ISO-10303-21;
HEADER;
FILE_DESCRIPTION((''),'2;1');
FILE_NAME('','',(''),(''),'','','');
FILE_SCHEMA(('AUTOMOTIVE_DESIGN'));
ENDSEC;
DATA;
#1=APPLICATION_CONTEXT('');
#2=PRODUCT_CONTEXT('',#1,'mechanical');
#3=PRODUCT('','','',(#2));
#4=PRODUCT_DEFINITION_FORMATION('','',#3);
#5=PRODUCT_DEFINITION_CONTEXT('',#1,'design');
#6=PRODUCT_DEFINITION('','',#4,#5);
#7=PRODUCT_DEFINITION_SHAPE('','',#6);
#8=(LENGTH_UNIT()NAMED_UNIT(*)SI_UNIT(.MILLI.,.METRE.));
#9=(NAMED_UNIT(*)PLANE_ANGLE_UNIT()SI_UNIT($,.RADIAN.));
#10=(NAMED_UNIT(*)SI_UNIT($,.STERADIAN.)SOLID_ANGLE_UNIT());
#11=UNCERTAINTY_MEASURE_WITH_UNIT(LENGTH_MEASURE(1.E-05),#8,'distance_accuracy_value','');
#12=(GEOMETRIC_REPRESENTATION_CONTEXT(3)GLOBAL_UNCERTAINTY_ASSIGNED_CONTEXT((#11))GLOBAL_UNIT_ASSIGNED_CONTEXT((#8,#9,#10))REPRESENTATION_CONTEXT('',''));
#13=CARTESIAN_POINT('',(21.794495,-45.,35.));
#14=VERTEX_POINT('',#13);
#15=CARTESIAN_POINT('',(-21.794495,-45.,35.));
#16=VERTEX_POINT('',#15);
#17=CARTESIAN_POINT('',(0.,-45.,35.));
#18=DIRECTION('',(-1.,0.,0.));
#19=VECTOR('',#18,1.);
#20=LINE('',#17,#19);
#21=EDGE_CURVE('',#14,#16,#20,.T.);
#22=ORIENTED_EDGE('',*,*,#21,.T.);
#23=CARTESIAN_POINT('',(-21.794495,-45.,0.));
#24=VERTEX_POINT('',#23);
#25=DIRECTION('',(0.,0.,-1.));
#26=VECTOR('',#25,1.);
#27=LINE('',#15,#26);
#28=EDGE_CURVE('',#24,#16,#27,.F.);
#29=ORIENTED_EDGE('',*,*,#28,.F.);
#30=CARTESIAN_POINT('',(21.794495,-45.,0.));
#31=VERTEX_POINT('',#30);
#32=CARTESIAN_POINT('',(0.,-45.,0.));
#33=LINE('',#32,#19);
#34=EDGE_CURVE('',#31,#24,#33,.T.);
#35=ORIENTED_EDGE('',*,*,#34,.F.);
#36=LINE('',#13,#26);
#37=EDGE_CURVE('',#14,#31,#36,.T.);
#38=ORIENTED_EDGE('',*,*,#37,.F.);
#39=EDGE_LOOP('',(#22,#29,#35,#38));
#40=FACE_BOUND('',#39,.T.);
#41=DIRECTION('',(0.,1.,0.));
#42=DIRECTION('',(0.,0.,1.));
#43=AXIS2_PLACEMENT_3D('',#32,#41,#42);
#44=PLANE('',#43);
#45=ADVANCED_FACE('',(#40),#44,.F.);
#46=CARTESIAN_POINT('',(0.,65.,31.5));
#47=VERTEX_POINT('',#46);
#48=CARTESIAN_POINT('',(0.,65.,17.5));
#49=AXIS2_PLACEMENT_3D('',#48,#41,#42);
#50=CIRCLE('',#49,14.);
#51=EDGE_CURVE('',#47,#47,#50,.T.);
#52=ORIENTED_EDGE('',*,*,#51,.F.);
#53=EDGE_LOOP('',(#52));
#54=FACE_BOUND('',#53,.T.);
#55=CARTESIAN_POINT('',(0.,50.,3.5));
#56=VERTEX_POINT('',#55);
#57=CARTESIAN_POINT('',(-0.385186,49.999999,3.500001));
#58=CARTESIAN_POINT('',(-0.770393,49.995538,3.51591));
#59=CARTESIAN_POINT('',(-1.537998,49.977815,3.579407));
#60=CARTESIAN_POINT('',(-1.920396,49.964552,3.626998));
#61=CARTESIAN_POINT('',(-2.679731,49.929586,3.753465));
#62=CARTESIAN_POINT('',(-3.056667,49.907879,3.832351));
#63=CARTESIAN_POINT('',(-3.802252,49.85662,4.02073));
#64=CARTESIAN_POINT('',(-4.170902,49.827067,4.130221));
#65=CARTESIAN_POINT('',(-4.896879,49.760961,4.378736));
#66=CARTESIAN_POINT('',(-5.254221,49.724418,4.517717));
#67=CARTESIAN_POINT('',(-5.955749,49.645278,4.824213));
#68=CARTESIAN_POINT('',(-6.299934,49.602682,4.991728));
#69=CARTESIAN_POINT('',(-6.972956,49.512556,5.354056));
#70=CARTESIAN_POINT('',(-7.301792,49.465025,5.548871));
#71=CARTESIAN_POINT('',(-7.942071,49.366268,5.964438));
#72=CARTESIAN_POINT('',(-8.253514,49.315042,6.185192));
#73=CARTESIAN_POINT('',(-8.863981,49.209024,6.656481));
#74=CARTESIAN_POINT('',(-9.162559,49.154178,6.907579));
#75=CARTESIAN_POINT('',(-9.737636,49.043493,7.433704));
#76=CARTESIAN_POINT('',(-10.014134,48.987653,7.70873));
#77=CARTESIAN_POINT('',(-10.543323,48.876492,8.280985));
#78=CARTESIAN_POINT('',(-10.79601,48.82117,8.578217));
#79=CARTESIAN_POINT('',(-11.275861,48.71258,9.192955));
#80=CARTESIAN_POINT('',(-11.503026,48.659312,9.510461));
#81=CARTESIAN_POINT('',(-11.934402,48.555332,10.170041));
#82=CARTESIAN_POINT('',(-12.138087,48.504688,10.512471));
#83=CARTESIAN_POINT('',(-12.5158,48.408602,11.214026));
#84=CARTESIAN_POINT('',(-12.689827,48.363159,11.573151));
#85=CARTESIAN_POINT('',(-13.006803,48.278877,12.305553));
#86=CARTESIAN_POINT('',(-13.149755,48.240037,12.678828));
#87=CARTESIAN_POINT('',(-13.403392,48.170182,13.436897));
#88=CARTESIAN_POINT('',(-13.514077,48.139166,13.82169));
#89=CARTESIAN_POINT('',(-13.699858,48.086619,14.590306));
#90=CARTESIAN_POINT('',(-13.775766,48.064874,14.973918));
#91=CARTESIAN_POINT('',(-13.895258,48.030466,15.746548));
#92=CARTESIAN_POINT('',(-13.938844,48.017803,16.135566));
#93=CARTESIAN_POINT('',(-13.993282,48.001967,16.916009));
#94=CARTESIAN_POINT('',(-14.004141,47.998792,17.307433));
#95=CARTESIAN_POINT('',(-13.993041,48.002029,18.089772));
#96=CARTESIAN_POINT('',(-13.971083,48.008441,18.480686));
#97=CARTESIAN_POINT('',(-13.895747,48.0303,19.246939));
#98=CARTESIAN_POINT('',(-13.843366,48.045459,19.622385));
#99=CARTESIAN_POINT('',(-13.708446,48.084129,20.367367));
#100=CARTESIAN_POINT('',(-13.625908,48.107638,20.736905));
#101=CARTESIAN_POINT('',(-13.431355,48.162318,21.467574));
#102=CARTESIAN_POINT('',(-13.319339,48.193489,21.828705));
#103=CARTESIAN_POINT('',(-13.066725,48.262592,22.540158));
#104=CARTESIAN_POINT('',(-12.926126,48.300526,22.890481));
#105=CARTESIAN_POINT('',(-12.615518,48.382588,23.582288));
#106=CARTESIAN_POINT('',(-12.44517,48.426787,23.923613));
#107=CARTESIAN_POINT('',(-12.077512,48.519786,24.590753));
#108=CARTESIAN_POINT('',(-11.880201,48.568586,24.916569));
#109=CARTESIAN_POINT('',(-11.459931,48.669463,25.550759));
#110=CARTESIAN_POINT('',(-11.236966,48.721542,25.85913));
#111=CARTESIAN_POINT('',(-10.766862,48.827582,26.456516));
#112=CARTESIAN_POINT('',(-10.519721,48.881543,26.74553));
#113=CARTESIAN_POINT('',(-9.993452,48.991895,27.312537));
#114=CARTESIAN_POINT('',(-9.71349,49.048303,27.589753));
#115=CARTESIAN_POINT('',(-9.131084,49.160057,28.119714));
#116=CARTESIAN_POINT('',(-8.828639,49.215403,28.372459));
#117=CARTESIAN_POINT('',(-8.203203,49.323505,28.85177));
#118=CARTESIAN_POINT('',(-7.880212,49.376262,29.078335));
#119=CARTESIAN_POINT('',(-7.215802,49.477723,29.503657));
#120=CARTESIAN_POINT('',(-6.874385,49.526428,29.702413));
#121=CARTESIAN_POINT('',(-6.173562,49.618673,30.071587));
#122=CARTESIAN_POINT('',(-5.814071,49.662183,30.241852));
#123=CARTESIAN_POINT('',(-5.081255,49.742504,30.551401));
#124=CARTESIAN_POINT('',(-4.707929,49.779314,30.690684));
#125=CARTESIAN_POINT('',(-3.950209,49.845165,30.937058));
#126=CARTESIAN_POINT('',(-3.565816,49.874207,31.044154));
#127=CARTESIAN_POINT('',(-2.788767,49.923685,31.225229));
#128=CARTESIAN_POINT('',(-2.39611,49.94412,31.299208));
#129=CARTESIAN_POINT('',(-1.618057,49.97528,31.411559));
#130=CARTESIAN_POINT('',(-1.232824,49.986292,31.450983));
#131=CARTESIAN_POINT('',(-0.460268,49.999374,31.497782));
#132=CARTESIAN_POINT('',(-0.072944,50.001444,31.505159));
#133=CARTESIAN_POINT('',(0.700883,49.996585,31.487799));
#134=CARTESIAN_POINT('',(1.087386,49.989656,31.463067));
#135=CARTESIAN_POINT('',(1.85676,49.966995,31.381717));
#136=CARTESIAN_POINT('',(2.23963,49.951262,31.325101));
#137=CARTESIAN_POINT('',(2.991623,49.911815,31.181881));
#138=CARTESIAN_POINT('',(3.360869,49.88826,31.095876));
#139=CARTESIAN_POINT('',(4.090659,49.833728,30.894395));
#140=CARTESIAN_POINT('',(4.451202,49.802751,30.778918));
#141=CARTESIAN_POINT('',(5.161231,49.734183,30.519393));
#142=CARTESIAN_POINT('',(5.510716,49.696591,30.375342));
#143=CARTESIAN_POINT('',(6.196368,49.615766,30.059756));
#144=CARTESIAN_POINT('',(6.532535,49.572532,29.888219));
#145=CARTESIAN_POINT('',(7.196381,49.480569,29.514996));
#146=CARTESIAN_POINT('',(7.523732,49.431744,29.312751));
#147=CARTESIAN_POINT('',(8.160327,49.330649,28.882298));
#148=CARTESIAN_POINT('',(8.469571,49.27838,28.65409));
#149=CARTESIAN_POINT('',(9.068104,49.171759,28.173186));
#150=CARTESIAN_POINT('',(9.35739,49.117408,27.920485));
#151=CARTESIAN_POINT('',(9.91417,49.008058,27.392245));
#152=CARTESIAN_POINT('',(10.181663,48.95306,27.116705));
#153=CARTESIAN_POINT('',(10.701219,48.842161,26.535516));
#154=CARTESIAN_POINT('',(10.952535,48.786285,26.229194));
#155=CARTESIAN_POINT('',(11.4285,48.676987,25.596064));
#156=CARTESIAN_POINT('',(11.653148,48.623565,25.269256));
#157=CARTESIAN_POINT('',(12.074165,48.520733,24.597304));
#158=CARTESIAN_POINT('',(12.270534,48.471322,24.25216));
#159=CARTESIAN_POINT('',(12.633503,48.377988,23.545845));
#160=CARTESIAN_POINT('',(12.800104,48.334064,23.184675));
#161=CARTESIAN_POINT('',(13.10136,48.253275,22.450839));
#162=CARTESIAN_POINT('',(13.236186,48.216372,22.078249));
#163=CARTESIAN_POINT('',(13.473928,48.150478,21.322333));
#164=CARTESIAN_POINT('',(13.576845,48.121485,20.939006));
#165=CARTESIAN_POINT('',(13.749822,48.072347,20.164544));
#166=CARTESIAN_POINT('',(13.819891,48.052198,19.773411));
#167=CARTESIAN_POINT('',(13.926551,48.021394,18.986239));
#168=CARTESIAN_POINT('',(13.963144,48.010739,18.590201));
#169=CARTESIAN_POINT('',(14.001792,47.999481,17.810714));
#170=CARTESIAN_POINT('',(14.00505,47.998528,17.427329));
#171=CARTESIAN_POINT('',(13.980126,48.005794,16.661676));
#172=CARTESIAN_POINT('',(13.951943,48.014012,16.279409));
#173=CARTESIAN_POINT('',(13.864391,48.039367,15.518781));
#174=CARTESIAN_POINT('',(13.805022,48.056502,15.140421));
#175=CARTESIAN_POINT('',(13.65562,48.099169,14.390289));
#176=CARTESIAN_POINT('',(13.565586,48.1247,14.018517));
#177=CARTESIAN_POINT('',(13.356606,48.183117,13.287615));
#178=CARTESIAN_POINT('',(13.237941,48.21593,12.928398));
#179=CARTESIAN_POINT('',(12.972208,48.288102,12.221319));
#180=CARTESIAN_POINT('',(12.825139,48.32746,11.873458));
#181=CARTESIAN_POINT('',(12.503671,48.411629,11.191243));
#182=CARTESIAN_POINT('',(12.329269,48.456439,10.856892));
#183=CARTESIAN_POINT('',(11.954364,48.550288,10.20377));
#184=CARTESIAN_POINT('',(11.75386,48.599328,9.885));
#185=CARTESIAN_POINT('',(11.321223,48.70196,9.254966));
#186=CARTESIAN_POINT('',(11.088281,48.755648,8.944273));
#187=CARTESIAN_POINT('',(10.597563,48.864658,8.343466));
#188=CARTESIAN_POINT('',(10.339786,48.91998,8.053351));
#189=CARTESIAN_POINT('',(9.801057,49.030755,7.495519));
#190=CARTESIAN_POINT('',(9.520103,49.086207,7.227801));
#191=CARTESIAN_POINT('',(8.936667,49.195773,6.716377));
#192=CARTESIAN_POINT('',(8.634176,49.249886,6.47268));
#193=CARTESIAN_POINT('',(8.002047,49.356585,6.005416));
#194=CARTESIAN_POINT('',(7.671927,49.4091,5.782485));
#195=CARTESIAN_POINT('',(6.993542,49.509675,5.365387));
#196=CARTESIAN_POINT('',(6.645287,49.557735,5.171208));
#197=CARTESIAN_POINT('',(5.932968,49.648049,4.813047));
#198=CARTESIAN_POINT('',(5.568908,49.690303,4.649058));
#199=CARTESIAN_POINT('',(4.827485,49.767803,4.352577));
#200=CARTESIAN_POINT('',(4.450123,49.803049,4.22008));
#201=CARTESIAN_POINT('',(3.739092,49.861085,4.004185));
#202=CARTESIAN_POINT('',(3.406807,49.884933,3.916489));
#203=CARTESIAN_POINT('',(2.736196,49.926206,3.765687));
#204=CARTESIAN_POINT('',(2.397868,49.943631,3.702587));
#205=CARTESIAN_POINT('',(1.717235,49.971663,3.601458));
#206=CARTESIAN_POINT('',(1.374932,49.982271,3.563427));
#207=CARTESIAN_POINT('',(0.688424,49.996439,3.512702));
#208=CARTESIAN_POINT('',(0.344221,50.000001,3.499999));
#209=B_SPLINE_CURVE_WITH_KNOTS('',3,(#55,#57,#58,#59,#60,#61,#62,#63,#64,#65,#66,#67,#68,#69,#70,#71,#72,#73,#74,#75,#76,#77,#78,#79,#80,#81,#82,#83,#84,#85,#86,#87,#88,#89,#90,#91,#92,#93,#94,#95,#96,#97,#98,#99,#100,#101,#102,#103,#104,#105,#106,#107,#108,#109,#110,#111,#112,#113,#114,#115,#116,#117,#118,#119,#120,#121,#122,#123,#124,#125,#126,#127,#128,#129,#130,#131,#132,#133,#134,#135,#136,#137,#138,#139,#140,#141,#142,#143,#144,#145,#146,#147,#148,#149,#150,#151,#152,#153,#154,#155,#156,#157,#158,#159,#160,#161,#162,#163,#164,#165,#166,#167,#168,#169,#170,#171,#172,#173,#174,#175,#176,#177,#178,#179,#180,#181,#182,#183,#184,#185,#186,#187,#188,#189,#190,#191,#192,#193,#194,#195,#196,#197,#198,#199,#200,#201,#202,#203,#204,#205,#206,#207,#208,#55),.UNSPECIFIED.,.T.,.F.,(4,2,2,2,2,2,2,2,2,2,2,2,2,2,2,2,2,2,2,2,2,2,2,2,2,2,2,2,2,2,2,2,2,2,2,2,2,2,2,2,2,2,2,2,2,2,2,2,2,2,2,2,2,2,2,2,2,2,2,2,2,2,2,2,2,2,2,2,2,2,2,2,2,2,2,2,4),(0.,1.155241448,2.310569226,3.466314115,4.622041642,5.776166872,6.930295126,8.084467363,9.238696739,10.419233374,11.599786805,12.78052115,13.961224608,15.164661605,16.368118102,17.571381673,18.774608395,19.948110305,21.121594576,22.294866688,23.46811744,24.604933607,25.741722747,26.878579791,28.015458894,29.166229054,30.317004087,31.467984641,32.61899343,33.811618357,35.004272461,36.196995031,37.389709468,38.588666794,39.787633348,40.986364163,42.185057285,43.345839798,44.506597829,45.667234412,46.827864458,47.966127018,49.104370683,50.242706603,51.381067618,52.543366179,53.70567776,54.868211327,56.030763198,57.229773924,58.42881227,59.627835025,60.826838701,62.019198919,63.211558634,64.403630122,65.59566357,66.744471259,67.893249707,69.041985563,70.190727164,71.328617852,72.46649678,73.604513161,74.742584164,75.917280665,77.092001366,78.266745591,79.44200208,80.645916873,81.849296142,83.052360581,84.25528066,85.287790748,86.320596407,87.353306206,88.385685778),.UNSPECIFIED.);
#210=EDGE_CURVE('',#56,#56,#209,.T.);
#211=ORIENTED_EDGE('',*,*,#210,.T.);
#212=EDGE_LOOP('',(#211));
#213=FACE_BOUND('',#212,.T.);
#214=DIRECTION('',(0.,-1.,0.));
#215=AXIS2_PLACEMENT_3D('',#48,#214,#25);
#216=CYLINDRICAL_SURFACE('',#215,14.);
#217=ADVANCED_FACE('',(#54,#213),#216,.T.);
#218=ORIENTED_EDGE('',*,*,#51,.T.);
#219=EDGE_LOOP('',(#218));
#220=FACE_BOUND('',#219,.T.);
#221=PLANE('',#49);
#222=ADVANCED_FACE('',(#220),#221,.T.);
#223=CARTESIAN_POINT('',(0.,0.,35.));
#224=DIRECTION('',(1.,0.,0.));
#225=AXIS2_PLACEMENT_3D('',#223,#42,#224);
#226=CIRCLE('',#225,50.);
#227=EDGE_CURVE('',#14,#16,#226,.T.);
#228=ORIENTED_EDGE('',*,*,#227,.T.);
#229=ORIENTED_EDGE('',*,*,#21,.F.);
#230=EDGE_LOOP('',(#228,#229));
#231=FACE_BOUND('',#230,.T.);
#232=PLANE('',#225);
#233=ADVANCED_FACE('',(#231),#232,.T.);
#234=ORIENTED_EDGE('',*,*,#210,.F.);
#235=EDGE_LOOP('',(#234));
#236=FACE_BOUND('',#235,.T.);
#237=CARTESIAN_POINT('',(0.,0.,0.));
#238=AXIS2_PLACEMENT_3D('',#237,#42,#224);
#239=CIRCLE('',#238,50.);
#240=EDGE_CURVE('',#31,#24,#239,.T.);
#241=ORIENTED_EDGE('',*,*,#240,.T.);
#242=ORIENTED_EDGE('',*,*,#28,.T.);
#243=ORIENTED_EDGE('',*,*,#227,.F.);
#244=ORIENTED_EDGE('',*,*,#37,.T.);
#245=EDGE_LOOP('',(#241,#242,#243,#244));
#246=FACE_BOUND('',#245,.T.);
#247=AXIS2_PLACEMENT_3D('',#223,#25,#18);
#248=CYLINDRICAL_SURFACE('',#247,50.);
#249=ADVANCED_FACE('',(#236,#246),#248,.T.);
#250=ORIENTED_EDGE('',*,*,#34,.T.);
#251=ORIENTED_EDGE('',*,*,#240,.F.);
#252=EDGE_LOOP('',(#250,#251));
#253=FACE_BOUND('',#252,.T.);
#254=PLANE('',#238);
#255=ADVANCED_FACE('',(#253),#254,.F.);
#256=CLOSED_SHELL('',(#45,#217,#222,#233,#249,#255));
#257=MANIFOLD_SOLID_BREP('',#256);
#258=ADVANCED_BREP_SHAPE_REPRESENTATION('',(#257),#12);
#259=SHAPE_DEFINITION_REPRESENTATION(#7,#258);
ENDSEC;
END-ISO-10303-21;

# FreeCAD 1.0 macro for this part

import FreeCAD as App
import Part
import Sketcher


def add_polygon(sketch, points):
    """Adds a closed chain of lines whose ends are joined by coincident constraints."""
    first, n = sketch.GeometryCount, len(points)
    for a, b in zip(points, points[1:] + points[:1]):
        sketch.addGeometry(Part.LineSegment(App.Vector(*a, 0), App.Vector(*b, 0)), False)
    for i in range(n):
        sketch.addConstraint(Sketcher.Constraint("Coincident", first + i, 2, first + (i + 1) % n, 1))

doc = App.newDocument("Part")
body = doc.addObject("PartDesign::Body", "Body")

sketch1 = doc.addObject("Sketcher::SketchObject", "Sketch")
body.addObject(sketch1)
sketch1.AttachmentSupport = (doc.XY_Plane, [""])
sketch1.MapMode = "FlatFace"
sketch1.addGeometry(Part.Circle(App.Vector(0, 0, 0), App.Vector(0, 0, 1), 50), False)
sketch1.addConstraint([
    Sketcher.Constraint("Coincident", 0, 3, -1, 1),
    Sketcher.Constraint("Diameter", 0, 100.0),
])
pad1 = doc.addObject("PartDesign::Pad", "Pad")
body.addObject(pad1)
pad1.Profile = sketch1
pad1.Length = 35

sketch2 = doc.addObject("Sketcher::SketchObject", "Sketch001")
body.addObject(sketch2)
sketch2.AttachmentSupport = (doc.XZ_Plane, [""])
sketch2.MapMode = "FlatFace"
sketch2.addGeometry(Part.Circle(App.Vector(0, 18, 0), App.Vector(0, 0, 1), 14), False)
sketch2.addConstraint([
    Sketcher.Constraint("PointOnObject", 0, 3, -2),
    Sketcher.Constraint("Diameter", 0, 28.0),
    Sketcher.Constraint("DistanceY", -1, 1, 0, 3, 17.5),
])
pad2 = doc.addObject("PartDesign::Pad", "Pad001")
body.addObject(pad2)
pad2.Profile = sketch2
pad2.Length = 65
pad2.Reversed = True

sketch3 = doc.addObject("Sketcher::SketchObject", "Sketch002")
body.addObject(sketch3)
sketch3.AttachmentSupport = (doc.XZ_Plane, [""])
sketch3.MapMode = "FlatFace"
sketch3.AttachmentOffset = App.Placement(App.Vector(0, 0, 45), App.Rotation())
add_polygon(sketch3, [(-75, -50), (-75, 50), (75, 50), (75, -50)])
sketch3.addConstraint([
    Sketcher.Constraint("Vertical", 0),
    Sketcher.Constraint("Horizontal", 1),
    Sketcher.Constraint("Vertical", 2),
    Sketcher.Constraint("Horizontal", 3),
    Sketcher.Constraint("Symmetric", 0, 2, 2, 2, -1, 1),
    Sketcher.Constraint("DistanceX", 1, 1, 1, 2, 150.0),
    Sketcher.Constraint("DistanceY", 0, 1, 0, 2, 100.0),
])
pocket1 = doc.addObject("PartDesign::Pocket", "Pocket")
body.addObject(pocket1)
pocket1.Profile = sketch3
pocket1.Length = 64
pocket1.Reversed = True

doc.recompute()
